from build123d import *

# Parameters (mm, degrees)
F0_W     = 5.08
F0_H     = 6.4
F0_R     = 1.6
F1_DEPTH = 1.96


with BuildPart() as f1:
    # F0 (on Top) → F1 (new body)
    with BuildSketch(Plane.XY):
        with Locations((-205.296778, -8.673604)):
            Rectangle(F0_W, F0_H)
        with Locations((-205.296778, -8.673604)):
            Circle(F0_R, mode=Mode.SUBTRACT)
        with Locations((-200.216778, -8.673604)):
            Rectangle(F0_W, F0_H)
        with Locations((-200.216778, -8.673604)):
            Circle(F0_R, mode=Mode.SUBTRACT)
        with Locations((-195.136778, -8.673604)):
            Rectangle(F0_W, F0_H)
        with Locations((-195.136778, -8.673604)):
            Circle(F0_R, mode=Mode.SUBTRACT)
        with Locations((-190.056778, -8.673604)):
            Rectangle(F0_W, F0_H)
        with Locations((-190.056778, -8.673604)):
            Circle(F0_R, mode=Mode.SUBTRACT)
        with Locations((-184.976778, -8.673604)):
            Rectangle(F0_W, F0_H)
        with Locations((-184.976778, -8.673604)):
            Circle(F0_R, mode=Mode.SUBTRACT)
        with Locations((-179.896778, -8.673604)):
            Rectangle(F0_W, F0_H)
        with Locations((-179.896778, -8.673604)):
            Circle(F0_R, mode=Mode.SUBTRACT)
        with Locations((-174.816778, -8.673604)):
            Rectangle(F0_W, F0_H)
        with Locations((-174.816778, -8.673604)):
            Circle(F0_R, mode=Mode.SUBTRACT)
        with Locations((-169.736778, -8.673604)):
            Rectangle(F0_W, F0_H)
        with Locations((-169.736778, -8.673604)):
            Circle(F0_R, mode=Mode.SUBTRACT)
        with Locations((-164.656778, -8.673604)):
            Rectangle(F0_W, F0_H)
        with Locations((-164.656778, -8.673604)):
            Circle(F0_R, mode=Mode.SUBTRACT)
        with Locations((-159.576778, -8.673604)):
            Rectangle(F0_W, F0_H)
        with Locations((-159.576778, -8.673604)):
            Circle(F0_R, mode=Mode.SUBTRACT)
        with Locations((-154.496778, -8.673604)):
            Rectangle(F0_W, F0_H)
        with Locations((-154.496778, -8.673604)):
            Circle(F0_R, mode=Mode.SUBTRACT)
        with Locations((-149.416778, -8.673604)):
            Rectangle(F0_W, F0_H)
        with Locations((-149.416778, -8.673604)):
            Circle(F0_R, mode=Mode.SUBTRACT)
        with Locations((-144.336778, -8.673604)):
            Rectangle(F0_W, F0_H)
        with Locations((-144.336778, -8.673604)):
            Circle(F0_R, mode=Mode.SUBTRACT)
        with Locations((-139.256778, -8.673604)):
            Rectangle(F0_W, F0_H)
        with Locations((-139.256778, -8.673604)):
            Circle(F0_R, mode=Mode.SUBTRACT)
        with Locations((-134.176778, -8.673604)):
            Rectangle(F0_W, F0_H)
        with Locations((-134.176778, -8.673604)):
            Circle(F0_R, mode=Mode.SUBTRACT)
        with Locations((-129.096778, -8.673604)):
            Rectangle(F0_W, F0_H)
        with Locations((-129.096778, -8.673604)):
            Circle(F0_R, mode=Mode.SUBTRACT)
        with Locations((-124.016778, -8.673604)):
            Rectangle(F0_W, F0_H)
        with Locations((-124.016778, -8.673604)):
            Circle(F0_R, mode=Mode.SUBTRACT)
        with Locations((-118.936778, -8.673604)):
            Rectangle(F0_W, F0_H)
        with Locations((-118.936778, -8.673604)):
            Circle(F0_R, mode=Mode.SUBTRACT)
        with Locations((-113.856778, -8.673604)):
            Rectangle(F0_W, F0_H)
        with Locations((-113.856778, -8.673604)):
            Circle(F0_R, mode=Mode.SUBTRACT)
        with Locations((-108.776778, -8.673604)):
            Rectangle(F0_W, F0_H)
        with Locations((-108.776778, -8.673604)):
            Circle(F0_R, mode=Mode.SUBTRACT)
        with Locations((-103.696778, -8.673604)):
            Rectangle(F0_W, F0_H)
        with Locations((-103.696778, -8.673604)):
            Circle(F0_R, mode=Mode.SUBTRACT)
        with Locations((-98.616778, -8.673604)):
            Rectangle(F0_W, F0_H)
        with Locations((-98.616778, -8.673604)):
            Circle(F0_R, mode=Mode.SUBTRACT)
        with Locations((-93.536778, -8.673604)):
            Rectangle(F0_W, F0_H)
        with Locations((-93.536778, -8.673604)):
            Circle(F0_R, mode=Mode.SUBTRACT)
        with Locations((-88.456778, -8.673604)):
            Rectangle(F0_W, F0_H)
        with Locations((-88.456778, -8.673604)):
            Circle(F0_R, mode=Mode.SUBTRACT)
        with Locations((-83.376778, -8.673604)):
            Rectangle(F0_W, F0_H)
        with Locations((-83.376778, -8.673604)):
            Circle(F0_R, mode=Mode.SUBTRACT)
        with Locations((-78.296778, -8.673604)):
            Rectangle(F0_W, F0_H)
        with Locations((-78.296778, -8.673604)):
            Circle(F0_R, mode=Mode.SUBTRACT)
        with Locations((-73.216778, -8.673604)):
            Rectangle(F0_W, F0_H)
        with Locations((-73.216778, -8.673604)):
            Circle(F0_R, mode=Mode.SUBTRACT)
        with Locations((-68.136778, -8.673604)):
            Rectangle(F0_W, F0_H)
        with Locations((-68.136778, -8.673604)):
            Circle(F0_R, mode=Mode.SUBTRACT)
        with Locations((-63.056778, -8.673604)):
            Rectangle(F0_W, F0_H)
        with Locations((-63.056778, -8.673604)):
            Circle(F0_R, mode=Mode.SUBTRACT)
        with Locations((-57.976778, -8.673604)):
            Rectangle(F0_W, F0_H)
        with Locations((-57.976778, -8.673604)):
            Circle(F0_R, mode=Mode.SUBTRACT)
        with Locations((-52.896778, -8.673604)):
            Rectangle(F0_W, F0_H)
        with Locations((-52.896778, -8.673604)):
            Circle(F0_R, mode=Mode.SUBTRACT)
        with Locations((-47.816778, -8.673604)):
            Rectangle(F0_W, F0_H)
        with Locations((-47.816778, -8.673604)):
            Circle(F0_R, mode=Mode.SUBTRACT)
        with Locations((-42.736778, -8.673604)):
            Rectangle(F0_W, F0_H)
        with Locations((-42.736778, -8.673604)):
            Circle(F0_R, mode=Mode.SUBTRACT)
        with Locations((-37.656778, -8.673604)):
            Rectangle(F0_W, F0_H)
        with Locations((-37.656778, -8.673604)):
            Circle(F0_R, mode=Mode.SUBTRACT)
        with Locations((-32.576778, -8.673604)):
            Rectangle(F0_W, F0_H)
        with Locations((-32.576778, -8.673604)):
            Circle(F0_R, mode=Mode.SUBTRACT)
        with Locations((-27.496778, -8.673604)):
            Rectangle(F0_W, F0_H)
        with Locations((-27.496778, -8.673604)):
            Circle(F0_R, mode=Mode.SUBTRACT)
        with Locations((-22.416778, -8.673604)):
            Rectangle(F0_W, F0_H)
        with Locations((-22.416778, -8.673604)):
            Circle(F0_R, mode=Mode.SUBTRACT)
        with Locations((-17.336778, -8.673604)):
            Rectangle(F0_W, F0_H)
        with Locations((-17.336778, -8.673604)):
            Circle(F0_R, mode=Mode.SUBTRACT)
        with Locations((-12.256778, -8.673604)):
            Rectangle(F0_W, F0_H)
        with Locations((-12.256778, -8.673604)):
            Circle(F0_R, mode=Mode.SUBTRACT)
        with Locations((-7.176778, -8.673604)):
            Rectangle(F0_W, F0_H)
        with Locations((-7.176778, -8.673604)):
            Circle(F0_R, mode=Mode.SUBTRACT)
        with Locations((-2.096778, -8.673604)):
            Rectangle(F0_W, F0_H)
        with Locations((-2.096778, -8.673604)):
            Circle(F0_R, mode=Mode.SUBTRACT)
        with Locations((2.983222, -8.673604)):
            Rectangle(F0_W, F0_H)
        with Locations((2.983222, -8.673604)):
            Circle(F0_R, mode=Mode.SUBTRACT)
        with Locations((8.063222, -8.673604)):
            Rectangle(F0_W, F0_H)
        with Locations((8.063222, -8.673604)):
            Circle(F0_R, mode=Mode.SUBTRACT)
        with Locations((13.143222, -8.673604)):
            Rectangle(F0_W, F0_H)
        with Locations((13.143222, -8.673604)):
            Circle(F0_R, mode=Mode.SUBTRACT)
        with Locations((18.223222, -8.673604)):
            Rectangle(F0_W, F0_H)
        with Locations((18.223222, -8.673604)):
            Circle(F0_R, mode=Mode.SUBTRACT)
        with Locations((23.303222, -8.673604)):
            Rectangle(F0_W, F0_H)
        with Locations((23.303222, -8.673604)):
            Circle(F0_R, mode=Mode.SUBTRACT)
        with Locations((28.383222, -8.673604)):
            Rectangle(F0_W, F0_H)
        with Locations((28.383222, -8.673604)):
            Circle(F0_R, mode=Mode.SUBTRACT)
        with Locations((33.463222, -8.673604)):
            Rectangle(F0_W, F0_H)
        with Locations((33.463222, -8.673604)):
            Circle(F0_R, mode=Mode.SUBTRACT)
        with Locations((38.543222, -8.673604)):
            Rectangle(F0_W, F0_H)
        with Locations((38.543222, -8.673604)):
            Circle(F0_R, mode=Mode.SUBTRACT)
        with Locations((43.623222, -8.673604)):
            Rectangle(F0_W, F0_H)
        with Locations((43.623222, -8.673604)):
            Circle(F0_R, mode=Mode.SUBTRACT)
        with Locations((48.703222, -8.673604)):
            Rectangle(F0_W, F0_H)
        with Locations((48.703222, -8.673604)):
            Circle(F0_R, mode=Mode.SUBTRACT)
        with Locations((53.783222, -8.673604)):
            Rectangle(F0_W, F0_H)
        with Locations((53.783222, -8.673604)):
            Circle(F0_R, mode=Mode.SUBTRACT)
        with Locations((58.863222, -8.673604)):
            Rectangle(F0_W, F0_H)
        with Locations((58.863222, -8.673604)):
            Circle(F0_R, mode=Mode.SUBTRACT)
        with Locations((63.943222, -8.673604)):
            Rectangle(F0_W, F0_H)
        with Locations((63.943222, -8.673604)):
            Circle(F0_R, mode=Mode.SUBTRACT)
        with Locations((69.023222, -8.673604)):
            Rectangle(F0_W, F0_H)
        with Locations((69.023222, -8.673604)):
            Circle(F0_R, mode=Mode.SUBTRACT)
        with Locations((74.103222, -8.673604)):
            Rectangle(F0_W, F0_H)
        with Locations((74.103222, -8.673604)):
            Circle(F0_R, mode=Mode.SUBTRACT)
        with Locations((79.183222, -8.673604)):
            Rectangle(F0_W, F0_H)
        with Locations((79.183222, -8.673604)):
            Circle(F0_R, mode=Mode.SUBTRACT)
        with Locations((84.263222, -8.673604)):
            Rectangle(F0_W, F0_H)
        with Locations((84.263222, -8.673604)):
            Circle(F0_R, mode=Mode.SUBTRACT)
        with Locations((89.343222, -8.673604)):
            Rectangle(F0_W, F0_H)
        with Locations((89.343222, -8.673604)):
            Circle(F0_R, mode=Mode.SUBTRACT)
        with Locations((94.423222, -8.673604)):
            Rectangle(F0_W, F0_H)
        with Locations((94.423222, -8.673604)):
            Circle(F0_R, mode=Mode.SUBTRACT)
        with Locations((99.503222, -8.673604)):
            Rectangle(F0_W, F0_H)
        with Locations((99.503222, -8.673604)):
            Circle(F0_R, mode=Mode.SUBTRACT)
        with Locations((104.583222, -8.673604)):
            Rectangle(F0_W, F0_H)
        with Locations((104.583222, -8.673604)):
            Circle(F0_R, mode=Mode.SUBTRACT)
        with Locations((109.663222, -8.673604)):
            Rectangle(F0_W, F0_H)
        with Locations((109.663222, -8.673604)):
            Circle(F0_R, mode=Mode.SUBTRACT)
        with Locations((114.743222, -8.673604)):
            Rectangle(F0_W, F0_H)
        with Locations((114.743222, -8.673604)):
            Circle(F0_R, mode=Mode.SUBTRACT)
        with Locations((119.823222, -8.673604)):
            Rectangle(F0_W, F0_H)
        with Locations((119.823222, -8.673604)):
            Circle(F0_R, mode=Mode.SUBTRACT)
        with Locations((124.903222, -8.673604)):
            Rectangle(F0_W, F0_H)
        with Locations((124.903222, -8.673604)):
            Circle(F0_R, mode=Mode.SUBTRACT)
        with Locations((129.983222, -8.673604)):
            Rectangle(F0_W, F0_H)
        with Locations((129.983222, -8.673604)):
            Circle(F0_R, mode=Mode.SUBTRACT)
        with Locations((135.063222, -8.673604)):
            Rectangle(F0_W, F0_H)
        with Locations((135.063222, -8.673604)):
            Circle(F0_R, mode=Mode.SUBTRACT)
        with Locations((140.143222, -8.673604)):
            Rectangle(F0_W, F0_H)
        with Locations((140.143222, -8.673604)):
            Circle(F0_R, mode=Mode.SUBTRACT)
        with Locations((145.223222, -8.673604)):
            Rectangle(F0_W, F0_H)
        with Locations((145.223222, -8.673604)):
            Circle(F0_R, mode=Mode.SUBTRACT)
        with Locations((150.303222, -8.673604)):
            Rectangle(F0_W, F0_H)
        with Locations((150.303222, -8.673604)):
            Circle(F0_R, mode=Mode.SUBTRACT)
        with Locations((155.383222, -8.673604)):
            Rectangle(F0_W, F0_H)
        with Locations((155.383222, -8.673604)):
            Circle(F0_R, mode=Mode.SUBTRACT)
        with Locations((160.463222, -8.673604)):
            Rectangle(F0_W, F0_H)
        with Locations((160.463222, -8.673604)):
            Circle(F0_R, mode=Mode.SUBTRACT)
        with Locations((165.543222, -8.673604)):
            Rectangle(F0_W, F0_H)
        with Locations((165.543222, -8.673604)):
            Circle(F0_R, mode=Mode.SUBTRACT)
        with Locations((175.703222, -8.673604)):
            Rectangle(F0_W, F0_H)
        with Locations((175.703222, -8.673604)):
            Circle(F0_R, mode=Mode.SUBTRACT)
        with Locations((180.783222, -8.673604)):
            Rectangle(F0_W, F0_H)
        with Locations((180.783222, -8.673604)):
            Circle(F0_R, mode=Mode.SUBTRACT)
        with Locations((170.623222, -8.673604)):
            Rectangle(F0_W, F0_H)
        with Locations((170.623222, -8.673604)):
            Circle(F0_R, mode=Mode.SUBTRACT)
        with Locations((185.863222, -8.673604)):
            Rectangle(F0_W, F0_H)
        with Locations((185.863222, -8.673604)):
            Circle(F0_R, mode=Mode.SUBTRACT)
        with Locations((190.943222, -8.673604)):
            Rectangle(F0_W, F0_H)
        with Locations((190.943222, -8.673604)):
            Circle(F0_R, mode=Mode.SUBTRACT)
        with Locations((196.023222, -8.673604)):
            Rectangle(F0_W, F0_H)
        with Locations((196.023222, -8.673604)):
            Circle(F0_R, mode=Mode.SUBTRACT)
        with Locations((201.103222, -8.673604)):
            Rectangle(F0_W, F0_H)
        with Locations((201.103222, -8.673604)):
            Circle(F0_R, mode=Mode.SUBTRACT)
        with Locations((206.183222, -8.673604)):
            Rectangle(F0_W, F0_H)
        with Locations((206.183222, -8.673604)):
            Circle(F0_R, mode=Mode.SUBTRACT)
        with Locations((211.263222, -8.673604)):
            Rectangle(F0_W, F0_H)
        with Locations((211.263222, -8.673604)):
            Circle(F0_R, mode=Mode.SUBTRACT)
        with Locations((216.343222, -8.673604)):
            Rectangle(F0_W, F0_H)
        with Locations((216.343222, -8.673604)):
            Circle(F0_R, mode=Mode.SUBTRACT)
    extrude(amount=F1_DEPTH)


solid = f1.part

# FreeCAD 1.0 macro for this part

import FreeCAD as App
import Part
import Sketcher
from FreeCAD import Vector

doc = App.newDocument("Part")
body = doc.addObject("PartDesign::Body", "Body")

sketch1 = body.newObject("Sketcher::SketchObject", "Sketch")
sketch1.AttachmentSupport = (doc.getObject("XY_Plane"), [""])
sketch1.MapMode = "FlatFace"
sketch1.addGeometry(Part.LineSegment(Vector(-207.8, -5.5, 0), Vector(-207.8, -11.9, 0)), False)
sketch1.addGeometry(Part.LineSegment(Vector(-207.8, -11.9, 0), Vector(218.9, -11.9, 0)), False)
sketch1.addGeometry(Part.LineSegment(Vector(218.9, -11.9, 0), Vector(218.9, -5.5, 0)), False)
sketch1.addGeometry(Part.LineSegment(Vector(218.9, -5.5, 0), Vector(-207.8, -5.5, 0)), False)
sketch1.addGeometry(Part.Circle(Vector(-205.3, -8.7, 0), Vector(0, 0, 1), 1.6), False)
sketch1.addGeometry(Part.Circle(Vector(-200.2, -8.7, 0), Vector(0, 0, 1), 1.6), False)
sketch1.addGeometry(Part.Circle(Vector(-195.1, -8.7, 0), Vector(0, 0, 1), 1.6), False)
sketch1.addGeometry(Part.Circle(Vector(-190.1, -8.7, 0), Vector(0, 0, 1), 1.6), False)
sketch1.addGeometry(Part.Circle(Vector(-185, -8.7, 0), Vector(0, 0, 1), 1.6), False)
sketch1.addGeometry(Part.Circle(Vector(-179.9, -8.7, 0), Vector(0, 0, 1), 1.6), False)
sketch1.addGeometry(Part.Circle(Vector(-174.8, -8.7, 0), Vector(0, 0, 1), 1.6), False)
sketch1.addGeometry(Part.Circle(Vector(-169.7, -8.7, 0), Vector(0, 0, 1), 1.6), False)
sketch1.addGeometry(Part.Circle(Vector(-164.7, -8.7, 0), Vector(0, 0, 1), 1.6), False)
sketch1.addGeometry(Part.Circle(Vector(-159.6, -8.7, 0), Vector(0, 0, 1), 1.6), False)
sketch1.addGeometry(Part.Circle(Vector(-154.5, -8.7, 0), Vector(0, 0, 1), 1.6), False)
sketch1.addGeometry(Part.Circle(Vector(-149.4, -8.7, 0), Vector(0, 0, 1), 1.6), False)
sketch1.addGeometry(Part.Circle(Vector(-144.3, -8.7, 0), Vector(0, 0, 1), 1.6), False)
sketch1.addGeometry(Part.Circle(Vector(-139.3, -8.7, 0), Vector(0, 0, 1), 1.6), False)
sketch1.addGeometry(Part.Circle(Vector(-134.2, -8.7, 0), Vector(0, 0, 1), 1.6), False)
sketch1.addGeometry(Part.Circle(Vector(-129.1, -8.7, 0), Vector(0, 0, 1), 1.6), False)
sketch1.addGeometry(Part.Circle(Vector(-124, -8.7, 0), Vector(0, 0, 1), 1.6), False)
sketch1.addGeometry(Part.Circle(Vector(-118.9, -8.7, 0), Vector(0, 0, 1), 1.6), False)
sketch1.addGeometry(Part.Circle(Vector(-113.9, -8.7, 0), Vector(0, 0, 1), 1.6), False)
sketch1.addGeometry(Part.Circle(Vector(-108.8, -8.7, 0), Vector(0, 0, 1), 1.6), False)
sketch1.addGeometry(Part.Circle(Vector(-103.7, -8.7, 0), Vector(0, 0, 1), 1.6), False)
sketch1.addGeometry(Part.Circle(Vector(-98.6, -8.7, 0), Vector(0, 0, 1), 1.6), False)
sketch1.addGeometry(Part.Circle(Vector(-93.5, -8.7, 0), Vector(0, 0, 1), 1.6), False)
sketch1.addGeometry(Part.Circle(Vector(-88.5, -8.7, 0), Vector(0, 0, 1), 1.6), False)
sketch1.addGeometry(Part.Circle(Vector(-83.4, -8.7, 0), Vector(0, 0, 1), 1.6), False)
sketch1.addGeometry(Part.Circle(Vector(-78.3, -8.7, 0), Vector(0, 0, 1), 1.6), False)
sketch1.addGeometry(Part.Circle(Vector(-73.2, -8.7, 0), Vector(0, 0, 1), 1.6), False)
sketch1.addGeometry(Part.Circle(Vector(-68.1, -8.7, 0), Vector(0, 0, 1), 1.6), False)
sketch1.addGeometry(Part.Circle(Vector(-63.1, -8.7, 0), Vector(0, 0, 1), 1.6), False)
sketch1.addGeometry(Part.Circle(Vector(-58, -8.7, 0), Vector(0, 0, 1), 1.6), False)
sketch1.addGeometry(Part.Circle(Vector(-52.9, -8.7, 0), Vector(0, 0, 1), 1.6), False)
sketch1.addGeometry(Part.Circle(Vector(-47.8, -8.7, 0), Vector(0, 0, 1), 1.6), False)
sketch1.addGeometry(Part.Circle(Vector(-42.7, -8.7, 0), Vector(0, 0, 1), 1.6), False)
sketch1.addGeometry(Part.Circle(Vector(-37.7, -8.7, 0), Vector(0, 0, 1), 1.6), False)
sketch1.addGeometry(Part.Circle(Vector(-32.6, -8.7, 0), Vector(0, 0, 1), 1.6), False)
sketch1.addGeometry(Part.Circle(Vector(-27.5, -8.7, 0), Vector(0, 0, 1), 1.6), False)
sketch1.addGeometry(Part.Circle(Vector(-22.4, -8.7, 0), Vector(0, 0, 1), 1.6), False)
sketch1.addGeometry(Part.Circle(Vector(-17.3, -8.7, 0), Vector(0, 0, 1), 1.6), False)
sketch1.addGeometry(Part.Circle(Vector(-12.3, -8.7, 0), Vector(0, 0, 1), 1.6), False)
sketch1.addGeometry(Part.Circle(Vector(-7.2, -8.7, 0), Vector(0, 0, 1), 1.6), False)
sketch1.addGeometry(Part.Circle(Vector(-2.1, -8.7, 0), Vector(0, 0, 1), 1.6), False)
sketch1.addGeometry(Part.Circle(Vector(3, -8.7, 0), Vector(0, 0, 1), 1.6), False)
sketch1.addGeometry(Part.Circle(Vector(8.1, -8.7, 0), Vector(0, 0, 1), 1.6), False)
sketch1.addGeometry(Part.Circle(Vector(13.1, -8.7, 0), Vector(0, 0, 1), 1.6), False)
sketch1.addGeometry(Part.Circle(Vector(18.2, -8.7, 0), Vector(0, 0, 1), 1.6), False)
sketch1.addGeometry(Part.Circle(Vector(23.3, -8.7, 0), Vector(0, 0, 1), 1.6), False)
sketch1.addGeometry(Part.Circle(Vector(28.4, -8.7, 0), Vector(0, 0, 1), 1.6), False)
sketch1.addGeometry(Part.Circle(Vector(33.5, -8.7, 0), Vector(0, 0, 1), 1.6), False)
sketch1.addGeometry(Part.Circle(Vector(38.5, -8.7, 0), Vector(0, 0, 1), 1.6), False)
sketch1.addGeometry(Part.Circle(Vector(43.6, -8.7, 0), Vector(0, 0, 1), 1.6), False)
sketch1.addGeometry(Part.Circle(Vector(48.7, -8.7, 0), Vector(0, 0, 1), 1.6), False)
sketch1.addGeometry(Part.Circle(Vector(53.8, -8.7, 0), Vector(0, 0, 1), 1.6), False)
sketch1.addGeometry(Part.Circle(Vector(58.9, -8.7, 0), Vector(0, 0, 1), 1.6), False)
sketch1.addGeometry(Part.Circle(Vector(63.9, -8.7, 0), Vector(0, 0, 1), 1.6), False)
sketch1.addGeometry(Part.Circle(Vector(69, -8.7, 0), Vector(0, 0, 1), 1.6), False)
sketch1.addGeometry(Part.Circle(Vector(74.1, -8.7, 0), Vector(0, 0, 1), 1.6), False)
sketch1.addGeometry(Part.Circle(Vector(79.2, -8.7, 0), Vector(0, 0, 1), 1.6), False)
sketch1.addGeometry(Part.Circle(Vector(84.3, -8.7, 0), Vector(0, 0, 1), 1.6), False)
sketch1.addGeometry(Part.Circle(Vector(89.3, -8.7, 0), Vector(0, 0, 1), 1.6), False)
sketch1.addGeometry(Part.Circle(Vector(94.4, -8.7, 0), Vector(0, 0, 1), 1.6), False)
sketch1.addGeometry(Part.Circle(Vector(99.5, -8.7, 0), Vector(0, 0, 1), 1.6), False)
sketch1.addGeometry(Part.Circle(Vector(104.6, -8.7, 0), Vector(0, 0, 1), 1.6), False)
sketch1.addGeometry(Part.Circle(Vector(109.7, -8.7, 0), Vector(0, 0, 1), 1.6), False)
sketch1.addGeometry(Part.Circle(Vector(114.7, -8.7, 0), Vector(0, 0, 1), 1.6), False)
sketch1.addGeometry(Part.Circle(Vector(119.8, -8.7, 0), Vector(0, 0, 1), 1.6), False)
sketch1.addGeometry(Part.Circle(Vector(124.9, -8.7, 0), Vector(0, 0, 1), 1.6), False)
sketch1.addGeometry(Part.Circle(Vector(130, -8.7, 0), Vector(0, 0, 1), 1.6), False)
sketch1.addGeometry(Part.Circle(Vector(135.1, -8.7, 0), Vector(0, 0, 1), 1.6), False)
sketch1.addGeometry(Part.Circle(Vector(140.1, -8.7, 0), Vector(0, 0, 1), 1.6), False)
sketch1.addGeometry(Part.Circle(Vector(145.2, -8.7, 0), Vector(0, 0, 1), 1.6), False)
sketch1.addGeometry(Part.Circle(Vector(150.3, -8.7, 0), Vector(0, 0, 1), 1.6), False)
sketch1.addGeometry(Part.Circle(Vector(155.4, -8.7, 0), Vector(0, 0, 1), 1.6), False)
sketch1.addGeometry(Part.Circle(Vector(160.5, -8.7, 0), Vector(0, 0, 1), 1.6), False)
sketch1.addGeometry(Part.Circle(Vector(165.5, -8.7, 0), Vector(0, 0, 1), 1.6), False)
sketch1.addGeometry(Part.Circle(Vector(170.6, -8.7, 0), Vector(0, 0, 1), 1.6), False)
sketch1.addGeometry(Part.Circle(Vector(175.7, -8.7, 0), Vector(0, 0, 1), 1.6), False)
sketch1.addGeometry(Part.Circle(Vector(180.8, -8.7, 0), Vector(0, 0, 1), 1.6), False)
sketch1.addGeometry(Part.Circle(Vector(185.9, -8.7, 0), Vector(0, 0, 1), 1.6), False)
sketch1.addGeometry(Part.Circle(Vector(190.9, -8.7, 0), Vector(0, 0, 1), 1.6), False)
sketch1.addGeometry(Part.Circle(Vector(196, -8.7, 0), Vector(0, 0, 1), 1.6), False)
sketch1.addGeometry(Part.Circle(Vector(201.1, -8.7, 0), Vector(0, 0, 1), 1.6), False)
sketch1.addGeometry(Part.Circle(Vector(206.2, -8.7, 0), Vector(0, 0, 1), 1.6), False)
sketch1.addGeometry(Part.Circle(Vector(211.3, -8.7, 0), Vector(0, 0, 1), 1.6), False)
sketch1.addGeometry(Part.Circle(Vector(216.3, -8.7, 0), Vector(0, 0, 1), 1.6), False)
sketch1.addConstraint(Sketcher.Constraint("Coincident", 0, 2, 1, 1))
sketch1.addConstraint(Sketcher.Constraint("Coincident", 1, 2, 2, 1))
sketch1.addConstraint(Sketcher.Constraint("Coincident", 2, 2, 3, 1))
sketch1.addConstraint(Sketcher.Constraint("Coincident", 3, 2, 0, 1))
sketch1.addConstraint(Sketcher.Constraint("Vertical", 0))
sketch1.addConstraint(Sketcher.Constraint("Horizontal", 1))
sketch1.addConstraint(Sketcher.Constraint("Vertical", 2))
sketch1.addConstraint(Sketcher.Constraint("Horizontal", 3))
sketch1.addConstraint(Sketcher.Constraint("Equal", 4, 5))
sketch1.addConstraint(Sketcher.Constraint("Equal", 5, 6))
sketch1.addConstraint(Sketcher.Constraint("Equal", 6, 7))
sketch1.addConstraint(Sketcher.Constraint("Equal", 7, 8))
sketch1.addConstraint(Sketcher.Constraint("Equal", 8, 9))
sketch1.addConstraint(Sketcher.Constraint("Equal", 9, 10))
sketch1.addConstraint(Sketcher.Constraint("Equal", 10, 11))
sketch1.addConstraint(Sketcher.Constraint("Equal", 11, 12))
sketch1.addConstraint(Sketcher.Constraint("Equal", 12, 13))
sketch1.addConstraint(Sketcher.Constraint("Equal", 13, 14))
sketch1.addConstraint(Sketcher.Constraint("Equal", 14, 15))
sketch1.addConstraint(Sketcher.Constraint("Equal", 15, 16))
sketch1.addConstraint(Sketcher.Constraint("Equal", 16, 17))
sketch1.addConstraint(Sketcher.Constraint("Equal", 17, 18))
sketch1.addConstraint(Sketcher.Constraint("Equal", 18, 19))
sketch1.addConstraint(Sketcher.Constraint("Equal", 19, 20))
sketch1.addConstraint(Sketcher.Constraint("Equal", 20, 21))
sketch1.addConstraint(Sketcher.Constraint("Equal", 21, 22))
sketch1.addConstraint(Sketcher.Constraint("Equal", 22, 23))
sketch1.addConstraint(Sketcher.Constraint("Equal", 23, 24))
sketch1.addConstraint(Sketcher.Constraint("Equal", 24, 25))
sketch1.addConstraint(Sketcher.Constraint("Equal", 25, 26))
sketch1.addConstraint(Sketcher.Constraint("Equal", 26, 27))
sketch1.addConstraint(Sketcher.Constraint("Equal", 27, 28))
sketch1.addConstraint(Sketcher.Constraint("Equal", 28, 29))
sketch1.addConstraint(Sketcher.Constraint("Equal", 29, 30))
sketch1.addConstraint(Sketcher.Constraint("Equal", 30, 31))
sketch1.addConstraint(Sketcher.Constraint("Equal", 31, 32))
sketch1.addConstraint(Sketcher.Constraint("Equal", 32, 33))
sketch1.addConstraint(Sketcher.Constraint("Equal", 33, 34))
sketch1.addConstraint(Sketcher.Constraint("Equal", 34, 35))
sketch1.addConstraint(Sketcher.Constraint("Equal", 35, 36))
sketch1.addConstraint(Sketcher.Constraint("Equal", 36, 37))
sketch1.addConstraint(Sketcher.Constraint("Equal", 37, 38))
sketch1.addConstraint(Sketcher.Constraint("Equal", 38, 39))
sketch1.addConstraint(Sketcher.Constraint("Equal", 39, 40))
sketch1.addConstraint(Sketcher.Constraint("Equal", 40, 41))
sketch1.addConstraint(Sketcher.Constraint("Equal", 41, 42))
sketch1.addConstraint(Sketcher.Constraint("Equal", 42, 43))
sketch1.addConstraint(Sketcher.Constraint("Equal", 43, 44))
sketch1.addConstraint(Sketcher.Constraint("Equal", 44, 45))
sketch1.addConstraint(Sketcher.Constraint("Equal", 45, 46))
sketch1.addConstraint(Sketcher.Constraint("Equal", 46, 47))
sketch1.addConstraint(Sketcher.Constraint("Equal", 47, 48))
sketch1.addConstraint(Sketcher.Constraint("Equal", 48, 49))
sketch1.addConstraint(Sketcher.Constraint("Equal", 49, 50))
sketch1.addConstraint(Sketcher.Constraint("Equal", 50, 51))
sketch1.addConstraint(Sketcher.Constraint("Equal", 51, 52))
sketch1.addConstraint(Sketcher.Constraint("Equal", 52, 53))
sketch1.addConstraint(Sketcher.Constraint("Equal", 53, 54))
sketch1.addConstraint(Sketcher.Constraint("Equal", 54, 55))
sketch1.addConstraint(Sketcher.Constraint("Equal", 55, 56))
sketch1.addConstraint(Sketcher.Constraint("Equal", 56, 57))
sketch1.addConstraint(Sketcher.Constraint("Equal", 57, 58))
sketch1.addConstraint(Sketcher.Constraint("Equal", 58, 59))
sketch1.addConstraint(Sketcher.Constraint("Equal", 59, 60))
sketch1.addConstraint(Sketcher.Constraint("Equal", 60, 61))
sketch1.addConstraint(Sketcher.Constraint("Equal", 61, 62))
sketch1.addConstraint(Sketcher.Constraint("Equal", 62, 63))
sketch1.addConstraint(Sketcher.Constraint("Equal", 63, 64))
sketch1.addConstraint(Sketcher.Constraint("Equal", 64, 65))
sketch1.addConstraint(Sketcher.Constraint("Equal", 65, 66))
sketch1.addConstraint(Sketcher.Constraint("Equal", 66, 67))
sketch1.addConstraint(Sketcher.Constraint("Equal", 67, 68))
sketch1.addConstraint(Sketcher.Constraint("Equal", 68, 69))
sketch1.addConstraint(Sketcher.Constraint("Equal", 69, 70))
sketch1.addConstraint(Sketcher.Constraint("Equal", 70, 71))
sketch1.addConstraint(Sketcher.Constraint("Equal", 71, 72))
sketch1.addConstraint(Sketcher.Constraint("Equal", 72, 73))
sketch1.addConstraint(Sketcher.Constraint("Equal", 73, 74))
sketch1.addConstraint(Sketcher.Constraint("Equal", 74, 75))
sketch1.addConstraint(Sketcher.Constraint("Equal", 75, 76))
sketch1.addConstraint(Sketcher.Constraint("Equal", 76, 77))
sketch1.addConstraint(Sketcher.Constraint("Equal", 77, 78))
sketch1.addConstraint(Sketcher.Constraint("Equal", 78, 79))
sketch1.addConstraint(Sketcher.Constraint("Equal", 79, 80))
sketch1.addConstraint(Sketcher.Constraint("Equal", 80, 81))
sketch1.addConstraint(Sketcher.Constraint("Equal", 81, 82))
sketch1.addConstraint(Sketcher.Constraint("Equal", 82, 83))
sketch1.addConstraint(Sketcher.Constraint("Equal", 83, 84))
sketch1.addConstraint(Sketcher.Constraint("Equal", 84, 85))
sketch1.addConstraint(Sketcher.Constraint("Equal", 85, 86))
sketch1.addConstraint(Sketcher.Constraint("Equal", 86, 87))
sketch1.addConstraint(Sketcher.Constraint("Horizontal", 4, 3, 5, 3))
sketch1.addConstraint(Sketcher.Constraint("Horizontal", 5, 3, 6, 3))
sketch1.addConstraint(Sketcher.Constraint("Horizontal", 6, 3, 7, 3))
sketch1.addConstraint(Sketcher.Constraint("Horizontal", 7, 3, 8, 3))
sketch1.addConstraint(Sketcher.Constraint("Horizontal", 8, 3, 9, 3))
sketch1.addConstraint(Sketcher.Constraint("Horizontal", 9, 3, 10, 3))
sketch1.addConstraint(Sketcher.Constraint("Horizontal", 10, 3, 11, 3))
sketch1.addConstraint(Sketcher.Constraint("Horizontal", 11, 3, 12, 3))
sketch1.addConstraint(Sketcher.Constraint("Horizontal", 12, 3, 13, 3))
sketch1.addConstraint(Sketcher.Constraint("Horizontal", 13, 3, 14, 3))
sketch1.addConstraint(Sketcher.Constraint("Horizontal", 14, 3, 15, 3))
sketch1.addConstraint(Sketcher.Constraint("Horizontal", 15, 3, 16, 3))
sketch1.addConstraint(Sketcher.Constraint("Horizontal", 16, 3, 17, 3))
sketch1.addConstraint(Sketcher.Constraint("Horizontal", 17, 3, 18, 3))
sketch1.addConstraint(Sketcher.Constraint("Horizontal", 18, 3, 19, 3))
sketch1.addConstraint(Sketcher.Constraint("Horizontal", 19, 3, 20, 3))
sketch1.addConstraint(Sketcher.Constraint("Horizontal", 20, 3, 21, 3))
sketch1.addConstraint(Sketcher.Constraint("Horizontal", 21, 3, 22, 3))
sketch1.addConstraint(Sketcher.Constraint("Horizontal", 22, 3, 23, 3))
sketch1.addConstraint(Sketcher.Constraint("Horizontal", 23, 3, 24, 3))
sketch1.addConstraint(Sketcher.Constraint("Horizontal", 24, 3, 25, 3))
sketch1.addConstraint(Sketcher.Constraint("Horizontal", 25, 3, 26, 3))
sketch1.addConstraint(Sketcher.Constraint("Horizontal", 26, 3, 27, 3))
sketch1.addConstraint(Sketcher.Constraint("Horizontal", 27, 3, 28, 3))
sketch1.addConstraint(Sketcher.Constraint("Horizontal", 28, 3, 29, 3))
sketch1.addConstraint(Sketcher.Constraint("Horizontal", 29, 3, 30, 3))
sketch1.addConstraint(Sketcher.Constraint("Horizontal", 30, 3, 31, 3))
sketch1.addConstraint(Sketcher.Constraint("Horizontal", 31, 3, 32, 3))
sketch1.addConstraint(Sketcher.Constraint("Horizontal", 32, 3, 33, 3))
sketch1.addConstraint(Sketcher.Constraint("Horizontal", 33, 3, 34, 3))
sketch1.addConstraint(Sketcher.Constraint("Horizontal", 34, 3, 35, 3))
sketch1.addConstraint(Sketcher.Constraint("Horizontal", 35, 3, 36, 3))
sketch1.addConstraint(Sketcher.Constraint("Horizontal", 36, 3, 37, 3))
sketch1.addConstraint(Sketcher.Constraint("Horizontal", 37, 3, 38, 3))
sketch1.addConstraint(Sketcher.Constraint("Horizontal", 38, 3, 39, 3))
sketch1.addConstraint(Sketcher.Constraint("Horizontal", 39, 3, 40, 3))
sketch1.addConstraint(Sketcher.Constraint("Horizontal", 40, 3, 41, 3))
sketch1.addConstraint(Sketcher.Constraint("Horizontal", 41, 3, 42, 3))
sketch1.addConstraint(Sketcher.Constraint("Horizontal", 42, 3, 43, 3))
sketch1.addConstraint(Sketcher.Constraint("Horizontal", 43, 3, 44, 3))
sketch1.addConstraint(Sketcher.Constraint("Horizontal", 44, 3, 45, 3))
sketch1.addConstraint(Sketcher.Constraint("Horizontal", 45, 3, 46, 3))
sketch1.addConstraint(Sketcher.Constraint("Horizontal", 46, 3, 47, 3))
sketch1.addConstraint(Sketcher.Constraint("Horizontal", 47, 3, 48, 3))
sketch1.addConstraint(Sketcher.Constraint("Horizontal", 48, 3, 49, 3))
sketch1.addConstraint(Sketcher.Constraint("Horizontal", 49, 3, 50, 3))
sketch1.addConstraint(Sketcher.Constraint("Horizontal", 50, 3, 51, 3))
sketch1.addConstraint(Sketcher.Constraint("Horizontal", 51, 3, 52, 3))
sketch1.addConstraint(Sketcher.Constraint("Horizontal", 52, 3, 53, 3))
sketch1.addConstraint(Sketcher.Constraint("Horizontal", 53, 3, 54, 3))
sketch1.addConstraint(Sketcher.Constraint("Horizontal", 54, 3, 55, 3))
sketch1.addConstraint(Sketcher.Constraint("Horizontal", 55, 3, 56, 3))
sketch1.addConstraint(Sketcher.Constraint("Horizontal", 56, 3, 57, 3))
sketch1.addConstraint(Sketcher.Constraint("Horizontal", 57, 3, 58, 3))
sketch1.addConstraint(Sketcher.Constraint("Horizontal", 58, 3, 59, 3))
sketch1.addConstraint(Sketcher.Constraint("Horizontal", 59, 3, 60, 3))
sketch1.addConstraint(Sketcher.Constraint("Horizontal", 60, 3, 61, 3))
sketch1.addConstraint(Sketcher.Constraint("Horizontal", 61, 3, 62, 3))
sketch1.addConstraint(Sketcher.Constraint("Horizontal", 62, 3, 63, 3))
sketch1.addConstraint(Sketcher.Constraint("Horizontal", 63, 3, 64, 3))
sketch1.addConstraint(Sketcher.Constraint("Horizontal", 64, 3, 65, 3))
sketch1.addConstraint(Sketcher.Constraint("Horizontal", 65, 3, 66, 3))
sketch1.addConstraint(Sketcher.Constraint("Horizontal", 66, 3, 67, 3))
sketch1.addConstraint(Sketcher.Constraint("Horizontal", 67, 3, 68, 3))
sketch1.addConstraint(Sketcher.Constraint("Horizontal", 68, 3, 69, 3))
sketch1.addConstraint(Sketcher.Constraint("Horizontal", 69, 3, 70, 3))
sketch1.addConstraint(Sketcher.Constraint("Horizontal", 70, 3, 71, 3))
sketch1.addConstraint(Sketcher.Constraint("Horizontal", 71, 3, 72, 3))
sketch1.addConstraint(Sketcher.Constraint("Horizontal", 72, 3, 73, 3))
sketch1.addConstraint(Sketcher.Constraint("Horizontal", 73, 3, 74, 3))
sketch1.addConstraint(Sketcher.Constraint("Horizontal", 74, 3, 75, 3))
sketch1.addConstraint(Sketcher.Constraint("Horizontal", 75, 3, 76, 3))
sketch1.addConstraint(Sketcher.Constraint("Horizontal", 76, 3, 77, 3))
sketch1.addConstraint(Sketcher.Constraint("Horizontal", 77, 3, 78, 3))
sketch1.addConstraint(Sketcher.Constraint("Horizontal", 78, 3, 79, 3))
sketch1.addConstraint(Sketcher.Constraint("Horizontal", 79, 3, 80, 3))
sketch1.addConstraint(Sketcher.Constraint("Horizontal", 80, 3, 81, 3))
sketch1.addConstraint(Sketcher.Constraint("Horizontal", 81, 3, 82, 3))
sketch1.addConstraint(Sketcher.Constraint("Horizontal", 82, 3, 83, 3))
sketch1.addConstraint(Sketcher.Constraint("Horizontal", 83, 3, 84, 3))
sketch1.addConstraint(Sketcher.Constraint("Horizontal", 84, 3, 85, 3))
sketch1.addConstraint(Sketcher.Constraint("Horizontal", 85, 3, 86, 3))
sketch1.addConstraint(Sketcher.Constraint("Horizontal", 86, 3, 87, 3))
sketch1.addConstraint(Sketcher.Constraint("Diameter", 4, 3.2))
sketch1.addConstraint(Sketcher.Constraint("DistanceY", 0, 2, 0, 1, 6.4))
sketch1.addConstraint(Sketcher.Constraint("DistanceX", 1, 1, 1, 2, 426.72))
sketch1.addConstraint(Sketcher.Constraint("DistanceX", 5, 3, -1, 1, 200.216778))
sketch1.addConstraint(Sketcher.Constraint("DistanceX", 6, 3, -1, 1, 195.136778))
sketch1.addConstraint(Sketcher.Constraint("DistanceX", 7, 3, -1, 1, 190.056778))
sketch1.addConstraint(Sketcher.Constraint("DistanceX", 8, 3, -1, 1, 184.976778))
sketch1.addConstraint(Sketcher.Constraint("DistanceX", 9, 3, -1, 1, 179.896778))
sketch1.addConstraint(Sketcher.Constraint("DistanceX", 10, 3, -1, 1, 174.816778))
sketch1.addConstraint(Sketcher.Constraint("DistanceX", 12, 3, -1, 1, 164.656778))
sketch1.addConstraint(Sketcher.Constraint("DistanceX", 14, 3, -1, 1, 154.496778))
sketch1.addConstraint(Sketcher.Constraint("DistanceX", 15, 3, -1, 1, 149.416778))
sketch1.addConstraint(Sketcher.Constraint("DistanceX", 16, 3, -1, 1, 144.336778))
sketch1.addConstraint(Sketcher.Constraint("DistanceX", 17, 3, -1, 1, 139.256778))
sketch1.addConstraint(Sketcher.Constraint("DistanceX", 18, 3, -1, 1, 134.176778))
sketch1.addConstraint(Sketcher.Constraint("DistanceX", 19, 3, -1, 1, 129.096778))
sketch1.addConstraint(Sketcher.Constraint("DistanceX", 20, 3, -1, 1, 124.016778))
sketch1.addConstraint(Sketcher.Constraint("DistanceX", 21, 3, -1, 1, 118.936778))
sketch1.addConstraint(Sketcher.Constraint("DistanceX", 22, 3, -1, 1, 113.856778))
sketch1.addConstraint(Sketcher.Constraint("DistanceX", 26, 3, -1, 1, 93.536778))
sketch1.addConstraint(Sketcher.Constraint("DistanceX", 27, 3, -1, 1, 88.456778))
sketch1.addConstraint(Sketcher.Constraint("DistanceX", 28, 3, -1, 1, 83.376778))
sketch1.addConstraint(Sketcher.Constraint("DistanceX", 29, 3, -1, 1, 78.296778))
sketch1.addConstraint(Sketcher.Constraint("DistanceX", 30, 3, -1, 1, 73.216778))
sketch1.addConstraint(Sketcher.Constraint("DistanceX", 31, 3, -1, 1, 68.136778))
sketch1.addConstraint(Sketcher.Constraint("DistanceX", 33, 3, -1, 1, 57.976778))
sketch1.addConstraint(Sketcher.Constraint("DistanceX", 37, 3, -1, 1, 37.656778))
sketch1.addConstraint(Sketcher.Constraint("DistanceX", 40, 3, -1, 1, 22.416778))
sketch1.addConstraint(Sketcher.Constraint("DistanceX", 42, 3, -1, 1, 12.256778))
sketch1.addConstraint(Sketcher.Constraint("DistanceX", 44, 3, -1, 1, 2.096778))
sketch1.addConstraint(Sketcher.Constraint("DistanceX", -1, 1, 45, 3, 2.983222))
sketch1.addConstraint(Sketcher.Constraint("DistanceX", -1, 1, 48, 3, 18.223222))
sketch1.addConstraint(Sketcher.Constraint("DistanceX", -1, 1, 50, 3, 28.383222))
sketch1.addConstraint(Sketcher.Constraint("DistanceX", -1, 1, 53, 3, 43.623222))
sketch1.addConstraint(Sketcher.Constraint("DistanceX", -1, 1, 54, 3, 48.703222))
sketch1.addConstraint(Sketcher.Constraint("DistanceX", -1, 1, 60, 3, 79.183222))
sketch1.addConstraint(Sketcher.Constraint("DistanceX", -1, 1, 61, 3, 84.263222))
sketch1.addConstraint(Sketcher.Constraint("DistanceX", -1, 1, 62, 3, 89.343222))
sketch1.addConstraint(Sketcher.Constraint("DistanceX", -1, 1, 63, 3, 94.423222))
sketch1.addConstraint(Sketcher.Constraint("DistanceX", -1, 1, 64, 3, 99.503222))
sketch1.addConstraint(Sketcher.Constraint("DistanceX", -1, 1, 68, 3, 119.823222))
sketch1.addConstraint(Sketcher.Constraint("DistanceX", -1, 1, 69, 3, 124.903222))
sketch1.addConstraint(Sketcher.Constraint("DistanceX", -1, 1, 71, 3, 135.063222))
sketch1.addConstraint(Sketcher.Constraint("DistanceX", -1, 1, 72, 3, 140.143222))
sketch1.addConstraint(Sketcher.Constraint("DistanceX", -1, 1, 73, 3, 145.223222))
sketch1.addConstraint(Sketcher.Constraint("DistanceX", -1, 1, 74, 3, 150.303222))
sketch1.addConstraint(Sketcher.Constraint("DistanceX", -1, 1, 75, 3, 155.383222))
sketch1.addConstraint(Sketcher.Constraint("DistanceX", -1, 1, 76, 3, 160.463222))
sketch1.addConstraint(Sketcher.Constraint("DistanceX", -1, 1, 77, 3, 165.543222))
sketch1.addConstraint(Sketcher.Constraint("DistanceX", -1, 1, 78, 3, 170.623222))
sketch1.addConstraint(Sketcher.Constraint("DistanceX", -1, 1, 80, 3, 180.783222))
sketch1.addConstraint(Sketcher.Constraint("DistanceX", -1, 1, 81, 3, 185.863222))
sketch1.addConstraint(Sketcher.Constraint("DistanceX", -1, 1, 82, 3, 190.943222))
sketch1.addConstraint(Sketcher.Constraint("DistanceX", -1, 1, 83, 3, 196.023222))
sketch1.addConstraint(Sketcher.Constraint("DistanceX", -1, 1, 84, 3, 201.103222))
sketch1.addConstraint(Sketcher.Constraint("DistanceX", -1, 1, 85, 3, 206.183222))
sketch1.addConstraint(Sketcher.Constraint("DistanceX", -1, 1, 87, 3, 216.343222))
sketch1.addConstraint(Sketcher.Constraint("DistanceX", 0, 2, -1, 1, 207.836778))
sketch1.addConstraint(Sketcher.Constraint("DistanceX", 4, 3, -1, 1, 205.296778))
sketch1.addConstraint(Sketcher.Constraint("DistanceY", 4, 3, -1, 1, 8.673604))
sketch1.addConstraint(Sketcher.Constraint("DistanceX", 11, 3, -1, 1, 169.736778))
sketch1.addConstraint(Sketcher.Constraint("DistanceX", 13, 3, -1, 1, 159.576778))
sketch1.addConstraint(Sketcher.Constraint("DistanceX", 23, 3, -1, 1, 108.776778))
sketch1.addConstraint(Sketcher.Constraint("DistanceX", 24, 3, -1, 1, 103.696778))
sketch1.addConstraint(Sketcher.Constraint("DistanceX", 25, 3, -1, 1, 98.616778))
sketch1.addConstraint(Sketcher.Constraint("DistanceX", 32, 3, -1, 1, 63.056778))
sketch1.addConstraint(Sketcher.Constraint("DistanceX", 34, 3, -1, 1, 52.896778))
sketch1.addConstraint(Sketcher.Constraint("DistanceX", 35, 3, -1, 1, 47.816778))
sketch1.addConstraint(Sketcher.Constraint("DistanceX", 36, 3, -1, 1, 42.736778))
sketch1.addConstraint(Sketcher.Constraint("DistanceX", 38, 3, -1, 1, 32.576778))
sketch1.addConstraint(Sketcher.Constraint("DistanceX", 39, 3, -1, 1, 27.496778))
sketch1.addConstraint(Sketcher.Constraint("DistanceX", 41, 3, -1, 1, 17.336778))
sketch1.addConstraint(Sketcher.Constraint("DistanceX", 43, 3, -1, 1, 7.176778))
sketch1.addConstraint(Sketcher.Constraint("DistanceX", -1, 1, 46, 3, 8.063222))
sketch1.addConstraint(Sketcher.Constraint("DistanceX", -1, 1, 47, 3, 13.143222))
sketch1.addConstraint(Sketcher.Constraint("DistanceX", -1, 1, 49, 3, 23.303222))
sketch1.addConstraint(Sketcher.Constraint("DistanceX", -1, 1, 51, 3, 33.463222))
sketch1.addConstraint(Sketcher.Constraint("DistanceX", -1, 1, 52, 3, 38.543222))
sketch1.addConstraint(Sketcher.Constraint("DistanceX", -1, 1, 55, 3, 53.783222))
sketch1.addConstraint(Sketcher.Constraint("DistanceX", -1, 1, 56, 3, 58.863222))
sketch1.addConstraint(Sketcher.Constraint("DistanceX", -1, 1, 57, 3, 63.943222))
sketch1.addConstraint(Sketcher.Constraint("DistanceX", -1, 1, 58, 3, 69.023222))
sketch1.addConstraint(Sketcher.Constraint("DistanceX", -1, 1, 59, 3, 74.103222))
sketch1.addConstraint(Sketcher.Constraint("DistanceX", -1, 1, 65, 3, 104.583222))
sketch1.addConstraint(Sketcher.Constraint("DistanceX", -1, 1, 66, 3, 109.663222))
sketch1.addConstraint(Sketcher.Constraint("DistanceX", -1, 1, 67, 3, 114.743222))
sketch1.addConstraint(Sketcher.Constraint("DistanceX", -1, 1, 70, 3, 129.983222))
sketch1.addConstraint(Sketcher.Constraint("DistanceX", -1, 1, 79, 3, 175.703222))
sketch1.addConstraint(Sketcher.Constraint("DistanceX", -1, 1, 86, 3, 211.263222))
sketch1.addConstraint(Sketcher.Constraint("DistanceY", 0, 2, -1, 1, 11.873604))
pad1 = body.newObject("PartDesign::Pad", "Pad")
pad1.Profile = sketch1
pad1.Length = 1.96

doc.recompute()
